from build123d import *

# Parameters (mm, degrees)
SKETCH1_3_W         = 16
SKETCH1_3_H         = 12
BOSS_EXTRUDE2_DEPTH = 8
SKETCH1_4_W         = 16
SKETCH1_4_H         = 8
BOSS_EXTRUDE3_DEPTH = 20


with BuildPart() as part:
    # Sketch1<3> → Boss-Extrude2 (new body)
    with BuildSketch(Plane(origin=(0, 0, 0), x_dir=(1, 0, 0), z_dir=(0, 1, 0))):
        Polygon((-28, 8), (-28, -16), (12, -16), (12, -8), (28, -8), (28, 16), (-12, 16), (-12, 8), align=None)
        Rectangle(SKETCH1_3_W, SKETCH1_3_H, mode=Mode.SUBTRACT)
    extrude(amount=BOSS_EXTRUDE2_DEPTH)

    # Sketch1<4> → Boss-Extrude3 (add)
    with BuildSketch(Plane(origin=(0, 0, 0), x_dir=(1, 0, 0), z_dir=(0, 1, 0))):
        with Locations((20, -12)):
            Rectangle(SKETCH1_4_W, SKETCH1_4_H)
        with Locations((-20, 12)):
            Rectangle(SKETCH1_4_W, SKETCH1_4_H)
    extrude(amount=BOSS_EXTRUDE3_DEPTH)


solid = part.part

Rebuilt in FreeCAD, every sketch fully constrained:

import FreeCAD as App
import Part
import Sketcher

V = App.Vector
Q = App.Units.Quantity


def add_polygon(sketch, points):
    """Adds a closed chain of lines whose ends are joined by coincident constraints."""
    first, n = sketch.GeometryCount, len(points)
    for a, b in zip(points, points[1:] + points[:1]):
        sketch.addGeometry(Part.LineSegment(App.Vector(*a, 0), App.Vector(*b, 0)), False)
    for i in range(n):
        sketch.addConstraint(Sketcher.Constraint("Coincident", first + i, 2, first + (i + 1) % n, 1))

doc = App.newDocument("Part")
body = doc.addObject("PartDesign::Body", "Body")

sketch1 = body.newObject("Sketcher::SketchObject", "Sketch")
sketch1.AttachmentSupport = (doc.getObject("XZ_Plane"), [""])
sketch1.MapMode = "FlatFace"
add_polygon(sketch1, [(-28, -8), (-28, 16), (12, 16), (12, 8), (28, 8), (28, -16), (-12, -16), (-12, -8)])
add_polygon(sketch1, [(8, 6), (-8, 6), (-8, -6), (8, -6)])
sketch1.addConstraint(Sketcher.Constraint("Vertical", 0))
sketch1.addConstraint(Sketcher.Constraint("Horizontal", 1))
sketch1.addConstraint(Sketcher.Constraint("Vertical", 2))
sketch1.addConstraint(Sketcher.Constraint("Horizontal", 3))
sketch1.addConstraint(Sketcher.Constraint("Vertical", 4))
sketch1.addConstraint(Sketcher.Constraint("Horizontal", 5))
sketch1.addConstraint(Sketcher.Constraint("Vertical", 6))
sketch1.addConstraint(Sketcher.Constraint("Horizontal", 7))
sketch1.addConstraint(Sketcher.Constraint("Horizontal", 8))
sketch1.addConstraint(Sketcher.Constraint("Vertical", 9))
sketch1.addConstraint(Sketcher.Constraint("Horizontal", 10))
sketch1.addConstraint(Sketcher.Constraint("Vertical", 11))
sketch1.addConstraint(Sketcher.Constraint("Symmetric", 0, 2, 4, 2, -1, 1))
sketch1.addConstraint(Sketcher.Constraint("Symmetric", 2, 2, 6, 2, -1, 1))
sketch1.addConstraint(Sketcher.Constraint("Symmetric", 8, 2, 10, 2, -1, 1))
sketch1.addConstraint(Sketcher.Constraint("Equal", 7, 8))
sketch1.addConstraint(Sketcher.Constraint("DistanceX", 1, 1, 1, 2, Q("40 mm")))
sketch1.addConstraint(Sketcher.Constraint("DistanceX", 3, 1, 3, 2, Q("16 mm")))
sketch1.addConstraint(Sketcher.Constraint("DistanceY", 0, 1, 0, 2, Q("24 mm")))
sketch1.addConstraint(Sketcher.Constraint("DistanceY", 2, 2, 2, 1, Q("8 mm")))
sketch1.addConstraint(Sketcher.Constraint("DistanceY", 9, 2, 9, 1, Q("12 mm")))
pad1 = body.newObject("PartDesign::Pad", "Pad")
pad1.Profile = sketch1
pad1.Length = 8
pad1.Reversed = True

sketch2 = body.newObject("Sketcher::SketchObject", "Sketch001")
sketch2.AttachmentSupport = (doc.getObject("XZ_Plane"), [""])
sketch2.MapMode = "FlatFace"
add_polygon(sketch2, [(12, 8), (12, 16), (28, 16), (28, 8)])
add_polygon(sketch2, [(-28, -16), (-28, -8), (-12, -8), (-12, -16)])
sketch2.addConstraint(Sketcher.Constraint("Vertical", 0))
sketch2.addConstraint(Sketcher.Constraint("Horizontal", 1))
sketch2.addConstraint(Sketcher.Constraint("Vertical", 2))
sketch2.addConstraint(Sketcher.Constraint("Horizontal", 3))
sketch2.addConstraint(Sketcher.Constraint("Vertical", 4))
sketch2.addConstraint(Sketcher.Constraint("Horizontal", 5))
sketch2.addConstraint(Sketcher.Constraint("Vertical", 6))
sketch2.addConstraint(Sketcher.Constraint("Horizontal", 7))
sketch2.addConstraint(Sketcher.Constraint("Symmetric", 2, 2, 4, 2, -1, 1))
sketch2.addConstraint(Sketcher.Constraint("Symmetric", 0, 2, 6, 2, -1, 1))
sketch2.addConstraint(Sketcher.Constraint("DistanceX", 1, 1, 1, 2, Q("16 mm")))
sketch2.addConstraint(Sketcher.Constraint("DistanceY", 0, 1, 0, 2, Q("8 mm")))
sketch2.addConstraint(Sketcher.Constraint("DistanceX", -1, 1, 0, 2, Q("12 mm")))
sketch2.addConstraint(Sketcher.Constraint("DistanceY", -1, 1, 0, 2, Q("16 mm")))
pad2 = body.newObject("PartDesign::Pad", "Pad001")
pad2.Profile = sketch2
pad2.Length = 20
pad2.Reversed = True

doc.recompute()
